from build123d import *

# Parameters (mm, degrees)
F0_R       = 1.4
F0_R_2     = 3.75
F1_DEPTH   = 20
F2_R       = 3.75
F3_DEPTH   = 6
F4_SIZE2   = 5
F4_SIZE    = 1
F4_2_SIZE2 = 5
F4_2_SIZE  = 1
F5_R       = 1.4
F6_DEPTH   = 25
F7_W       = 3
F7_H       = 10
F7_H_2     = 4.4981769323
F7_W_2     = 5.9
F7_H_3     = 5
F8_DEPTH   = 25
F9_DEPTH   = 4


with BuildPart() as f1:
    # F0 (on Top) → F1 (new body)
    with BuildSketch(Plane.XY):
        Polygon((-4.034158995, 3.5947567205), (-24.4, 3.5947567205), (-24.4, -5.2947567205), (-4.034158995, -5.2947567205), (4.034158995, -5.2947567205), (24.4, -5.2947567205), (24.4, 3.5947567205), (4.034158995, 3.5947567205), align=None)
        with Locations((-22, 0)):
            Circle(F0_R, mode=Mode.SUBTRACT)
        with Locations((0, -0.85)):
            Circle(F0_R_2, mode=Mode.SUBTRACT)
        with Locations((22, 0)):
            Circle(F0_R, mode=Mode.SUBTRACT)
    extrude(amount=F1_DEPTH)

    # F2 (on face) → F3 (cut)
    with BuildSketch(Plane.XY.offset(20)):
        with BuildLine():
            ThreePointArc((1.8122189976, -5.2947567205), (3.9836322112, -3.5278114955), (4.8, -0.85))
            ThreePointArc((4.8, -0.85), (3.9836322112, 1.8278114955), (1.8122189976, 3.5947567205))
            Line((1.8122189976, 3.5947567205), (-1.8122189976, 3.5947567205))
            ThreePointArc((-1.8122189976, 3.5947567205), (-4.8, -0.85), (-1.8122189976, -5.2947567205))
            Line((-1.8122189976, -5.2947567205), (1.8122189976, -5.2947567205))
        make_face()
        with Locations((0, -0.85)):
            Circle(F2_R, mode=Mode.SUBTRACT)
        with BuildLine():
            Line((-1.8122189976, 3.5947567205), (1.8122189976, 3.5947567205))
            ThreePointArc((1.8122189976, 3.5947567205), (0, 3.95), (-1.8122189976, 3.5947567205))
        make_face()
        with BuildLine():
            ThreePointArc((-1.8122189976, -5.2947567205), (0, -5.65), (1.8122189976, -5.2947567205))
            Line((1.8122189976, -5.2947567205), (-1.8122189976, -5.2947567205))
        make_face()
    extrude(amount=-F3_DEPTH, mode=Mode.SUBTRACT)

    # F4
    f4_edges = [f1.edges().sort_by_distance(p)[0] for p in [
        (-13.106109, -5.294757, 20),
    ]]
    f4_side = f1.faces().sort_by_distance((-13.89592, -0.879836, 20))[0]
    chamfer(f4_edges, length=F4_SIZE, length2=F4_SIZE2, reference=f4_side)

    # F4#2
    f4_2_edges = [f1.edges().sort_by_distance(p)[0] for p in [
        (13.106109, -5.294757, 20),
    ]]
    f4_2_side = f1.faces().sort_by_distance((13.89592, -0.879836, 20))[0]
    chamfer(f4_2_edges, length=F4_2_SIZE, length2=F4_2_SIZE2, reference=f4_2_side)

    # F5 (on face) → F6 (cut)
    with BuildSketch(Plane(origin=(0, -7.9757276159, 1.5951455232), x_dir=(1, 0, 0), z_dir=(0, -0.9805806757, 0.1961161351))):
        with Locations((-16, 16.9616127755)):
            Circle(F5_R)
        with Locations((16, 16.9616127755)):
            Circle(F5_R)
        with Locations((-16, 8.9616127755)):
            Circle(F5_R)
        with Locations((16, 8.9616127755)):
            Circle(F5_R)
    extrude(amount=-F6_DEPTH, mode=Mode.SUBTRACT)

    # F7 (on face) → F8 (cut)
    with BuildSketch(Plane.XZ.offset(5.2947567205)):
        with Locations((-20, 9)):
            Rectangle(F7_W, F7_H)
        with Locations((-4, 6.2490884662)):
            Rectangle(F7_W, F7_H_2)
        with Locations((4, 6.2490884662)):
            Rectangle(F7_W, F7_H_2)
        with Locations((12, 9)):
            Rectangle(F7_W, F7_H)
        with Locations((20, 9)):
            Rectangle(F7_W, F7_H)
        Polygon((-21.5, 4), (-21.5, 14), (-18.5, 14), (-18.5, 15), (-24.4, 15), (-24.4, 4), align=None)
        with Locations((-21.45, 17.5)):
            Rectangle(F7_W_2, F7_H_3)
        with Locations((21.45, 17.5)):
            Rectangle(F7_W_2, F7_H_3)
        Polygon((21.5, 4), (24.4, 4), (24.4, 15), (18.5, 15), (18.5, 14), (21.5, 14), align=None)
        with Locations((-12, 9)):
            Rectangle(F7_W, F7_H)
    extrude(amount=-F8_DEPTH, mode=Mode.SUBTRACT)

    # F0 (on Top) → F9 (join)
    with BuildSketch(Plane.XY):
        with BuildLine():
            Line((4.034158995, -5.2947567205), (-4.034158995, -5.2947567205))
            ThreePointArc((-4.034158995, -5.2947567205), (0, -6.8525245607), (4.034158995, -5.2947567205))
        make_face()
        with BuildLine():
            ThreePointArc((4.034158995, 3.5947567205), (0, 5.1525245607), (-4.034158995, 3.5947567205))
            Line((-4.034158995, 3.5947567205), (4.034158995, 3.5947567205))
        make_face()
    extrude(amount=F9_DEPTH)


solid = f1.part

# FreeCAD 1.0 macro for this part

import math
import FreeCAD as App
import Part
import Sketcher
from FreeCAD import Vector


def edges_at(feature, points):
    """Names of the edges that pass closest to the given points."""
    edges = feature.Shape.Edges
    near = lambda p: min(range(len(edges)), key=lambda i: edges[i].distToShape(Part.Vertex(*p))[0])
    return sorted({f"Edge{near(p) + 1}" for p in points})

doc = App.newDocument("Part")
body = doc.addObject("PartDesign::Body", "Body")

# Sketch on XY plane
sketch1 = body.newObject("Sketcher::SketchObject", "Sketch")
sketch1.AttachmentSupport = (doc.getObject("XY_Plane"), [""])
sketch1.MapMode = "FlatFace"
sketch1.addGeometry(Part.LineSegment(Vector(-24.4, 3.594757, 0), Vector(-24.4, -5.294757, 0)), False)
sketch1.addGeometry(Part.LineSegment(Vector(-24.4, -5.294757, 0), Vector(24.4, -5.294757, 0)), False)
sketch1.addGeometry(Part.LineSegment(Vector(24.4, -5.294757, 0), Vector(24.4, 3.594757, 0)), False)
sketch1.addGeometry(Part.LineSegment(Vector(24.4, 3.594757, 0), Vector(-24.4, 3.594757, 0)), False)
sketch1.addGeometry(Part.Circle(Vector(-22, 0, 0), Vector(0, 0, 1), 1.4), False)
sketch1.addGeometry(Part.Circle(Vector(0, -0.85, 0), Vector(0, 0, 1), 3.75), False)
sketch1.addGeometry(Part.Circle(Vector(22, 0, 0), Vector(0, 0, 1), 1.4), False)
sketch1.addConstraint(Sketcher.Constraint("Coincident", 0, 2, 1, 1))
sketch1.addConstraint(Sketcher.Constraint("Coincident", 1, 2, 2, 1))
sketch1.addConstraint(Sketcher.Constraint("Coincident", 2, 2, 3, 1))
sketch1.addConstraint(Sketcher.Constraint("Coincident", 3, 2, 0, 1))
sketch1.addConstraint(Sketcher.Constraint("Vertical", 0))
sketch1.addConstraint(Sketcher.Constraint("Horizontal", 1))
sketch1.addConstraint(Sketcher.Constraint("Vertical", 2))
sketch1.addConstraint(Sketcher.Constraint("Horizontal", 3))
sketch1.addConstraint(Sketcher.Constraint("Equal", 4, 6))
sketch1.addConstraint(Sketcher.Constraint("Symmetric", 4, 3, 6, 3, -1, 1))
sketch1.addConstraint(Sketcher.Constraint("PointOnObject", 4, 3, -1))
sketch1.addConstraint(Sketcher.Constraint("PointOnObject", 5, 3, -2))
sketch1.addConstraint(Sketcher.Constraint("Diameter", 4, 2.8))
sketch1.addConstraint(Sketcher.Constraint("Diameter", 5, 7.5))
sketch1.addConstraint(Sketcher.Constraint("DistanceX", 1, 1, 1, 2, 48.8))
sketch1.addConstraint(Sketcher.Constraint("DistanceX", 4, 3, -1, 1, 22.0))
sketch1.addConstraint(Sketcher.Constraint("DistanceX", 0, 2, -1, 1, 24.4))
sketch1.addConstraint(Sketcher.Constraint("DistanceY", 5, 3, -1, 1, 0.85))
sketch1.addConstraint(Sketcher.Constraint("DistanceY", 0, 2, 0, 1, 8.889513))
sketch1.addConstraint(Sketcher.Constraint("DistanceY", 0, 2, -1, 1, 5.294757))
pad1 = body.newObject("PartDesign::Pad", "Pad")
pad1.Profile = sketch1
pad1.Length = 20

# Sketch on XY plane
sketch2 = body.newObject("Sketcher::SketchObject", "Sketch001")
sketch2.AttachmentSupport = (doc.getObject("XY_Plane"), [""])
sketch2.MapMode = "FlatFace"
sketch2.AttachmentOffset = App.Placement(Vector(0, 0, 20), App.Rotation())
sketch2.addGeometry(Part.ArcOfCircle(Part.Circle(Vector(0, -0.85, 0), Vector(0, 0, 1), 4.8), math.radians(-67.818264), math.radians(0)), False)
sketch2.addGeometry(Part.ArcOfCircle(Part.Circle(Vector(0, -0.85, 0), Vector(0, 0, 1), 4.8), math.radians(0), math.radians(67.818264)), False)
sketch2.addGeometry(Part.ArcOfCircle(Part.Circle(Vector(0, -0.85, 0), Vector(0, 0, 1), 4.8), math.radians(67.818264), math.radians(112.181736)), False)
sketch2.addGeometry(Part.ArcOfCircle(Part.Circle(Vector(0, -0.85, 0), Vector(0, 0, 1), 4.8), math.radians(112.181736), math.radians(247.818264)), False)
sketch2.addGeometry(Part.ArcOfCircle(Part.Circle(Vector(0, -0.85, 0), Vector(0, 0, 1), 4.8), math.radians(-112.181736), math.radians(-67.818264)), False)
sketch2.addGeometry(Part.Circle(Vector(0, -0.85, 0), Vector(0, 0, 1), 3.75), False)
sketch2.addConstraint(Sketcher.Constraint("Tangent", 0, 2, 1, 1))
sketch2.addConstraint(Sketcher.Constraint("Tangent", 1, 2, 2, 1))
sketch2.addConstraint(Sketcher.Constraint("Tangent", 2, 2, 3, 1))
sketch2.addConstraint(Sketcher.Constraint("Tangent", 3, 2, 4, 1))
sketch2.addConstraint(Sketcher.Constraint("Tangent", 4, 2, 0, 1))
sketch2.addConstraint(Sketcher.Constraint("Coincident", 2, 3, 0, 3))
sketch2.addConstraint(Sketcher.Constraint("Coincident", 5, 3, 0, 3))
sketch2.addConstraint(Sketcher.Constraint("Symmetric", 1, 2, 2, 2, -2))
sketch2.addConstraint(Sketcher.Constraint("Horizontal", 5, 3, 0, 2))
sketch2.addConstraint(Sketcher.Constraint("Horizontal", 3, 2, 4, 2))
sketch2.addConstraint(Sketcher.Constraint("Vertical", 2, 2, 3, 2))
sketch2.addConstraint(Sketcher.Constraint("Diameter", 5, 7.5))
sketch2.addConstraint(Sketcher.Constraint("Radius", 0, 4.8))
sketch2.addConstraint(Sketcher.Constraint("DistanceY", 0, 3, -1, 1, 0.85))
sketch2.addConstraint(Sketcher.Constraint("DistanceX", -1, 1, 1, 2, 1.812219))
pocket1 = body.newObject("PartDesign::Pocket", "Pocket")
pocket1.Profile = sketch2
pocket1.Length = 6
doc.recompute()

chamfer = body.newObject("PartDesign::Chamfer", "Chamfer")
chamfer.Base = (pocket1, edges_at(pocket1, [(-13.106, -5.295, 20)]))
chamfer.ChamferType = "Two distances"
chamfer.Size = 1
chamfer.Size2 = 5
chamfer.FlipDirection = True
doc.recompute()

chamfer2 = body.newObject("PartDesign::Chamfer", "Chamfer001")
chamfer2.Base = (chamfer, edges_at(chamfer, [(13.106, -5.295, 20)]))
chamfer2.ChamferType = "Two distances"
chamfer2.Size = 1
chamfer2.Size2 = 5
chamfer2.FlipDirection = True

# Sketch on an angled plane
sketch3 = body.newObject("Sketcher::SketchObject", "Sketch002")
sketch3.Placement = App.Placement(Vector(0, -7.975728, 1.595146), App.Rotation(Vector(1, 0, 0), Vector(0, 0.196116135, 0.980580676), Vector(0, -0.980580676, 0.196116135), "ZXY"))
sketch3.addGeometry(Part.Circle(Vector(-16, 16.961613, 0), Vector(0, 0, 1), 1.4), False)
sketch3.addGeometry(Part.Circle(Vector(16, 16.961613, 0), Vector(0, 0, 1), 1.4), False)
sketch3.addGeometry(Part.Circle(Vector(-16, 8.961613, 0), Vector(0, 0, 1), 1.4), False)
sketch3.addGeometry(Part.Circle(Vector(16, 8.961613, 0), Vector(0, 0, 1), 1.4), False)
sketch3.addConstraint(Sketcher.Constraint("Equal", 0, 1))
sketch3.addConstraint(Sketcher.Constraint("Equal", 1, 2))
sketch3.addConstraint(Sketcher.Constraint("Equal", 2, 3))
sketch3.addConstraint(Sketcher.Constraint("Symmetric", 0, 3, 1, 3, -2))
sketch3.addConstraint(Sketcher.Constraint("Symmetric", 2, 3, 3, 3, -2))
sketch3.addConstraint(Sketcher.Constraint("Vertical", 0, 3, 2, 3))
sketch3.addConstraint(Sketcher.Constraint("Diameter", 0, 2.8))
sketch3.addConstraint(Sketcher.Constraint("DistanceX", 0, 3, -1, 1, 16.0))
sketch3.addConstraint(Sketcher.Constraint("DistanceY", 2, 3, 0, 3, 8.0))
sketch3.addConstraint(Sketcher.Constraint("DistanceY", -1, 1, 0, 3, 16.961613))
pocket2 = body.newObject("PartDesign::Pocket", "Pocket001")
pocket2.Profile = sketch3
pocket2.Length = 25

# Sketch on XZ plane
sketch4 = body.newObject("Sketcher::SketchObject", "Sketch003")
sketch4.AttachmentSupport = (doc.getObject("XZ_Plane"), [""])
sketch4.MapMode = "FlatFace"
sketch4.AttachmentOffset = App.Placement(Vector(0, 0, 5.294757), App.Rotation())
sketch4.addGeometry(Part.LineSegment(Vector(-18.5, 4, 0), Vector(-18.5, 20, 0)), False)
sketch4.addGeometry(Part.LineSegment(Vector(-18.5, 20, 0), Vector(-24.4, 20, 0)), False)
sketch4.addGeometry(Part.LineSegment(Vector(-24.4, 20, 0), Vector(-24.4, 4, 0)), False)
sketch4.addGeometry(Part.LineSegment(Vector(-24.4, 4, 0), Vector(-18.5, 4, 0)), False)
sketch4.addGeometry(Part.LineSegment(Vector(-5.5, 8.498177, 0), Vector(-5.5, 4, 0)), False)
sketch4.addGeometry(Part.LineSegment(Vector(-5.5, 4, 0), Vector(-2.5, 4, 0)), False)
sketch4.addGeometry(Part.LineSegment(Vector(-2.5, 4, 0), Vector(-2.5, 8.498177, 0)), False)
sketch4.addGeometry(Part.LineSegment(Vector(-2.5, 8.498177, 0), Vector(-5.5, 8.498177, 0)), False)
sketch4.addGeometry(Part.LineSegment(Vector(2.5, 8.498177, 0), Vector(2.5, 4, 0)), False)
sketch4.addGeometry(Part.LineSegment(Vector(2.5, 4, 0), Vector(5.5, 4, 0)), False)
sketch4.addGeometry(Part.LineSegment(Vector(5.5, 4, 0), Vector(5.5, 8.498177, 0)), False)
sketch4.addGeometry(Part.LineSegment(Vector(5.5, 8.498177, 0), Vector(2.5, 8.498177, 0)), False)
sketch4.addGeometry(Part.LineSegment(Vector(10.5, 14, 0), Vector(10.5, 4, 0)), False)
sketch4.addGeometry(Part.LineSegment(Vector(10.5, 4, 0), Vector(13.5, 4, 0)), False)
sketch4.addGeometry(Part.LineSegment(Vector(13.5, 4, 0), Vector(13.5, 14, 0)), False)
sketch4.addGeometry(Part.LineSegment(Vector(13.5, 14, 0), Vector(10.5, 14, 0)), False)
sketch4.addGeometry(Part.LineSegment(Vector(18.5, 4, 0), Vector(24.4, 4, 0)), False)
sketch4.addGeometry(Part.LineSegment(Vector(24.4, 4, 0), Vector(24.4, 20, 0)), False)
sketch4.addGeometry(Part.LineSegment(Vector(24.4, 20, 0), Vector(18.5, 20, 0)), False)
sketch4.addGeometry(Part.LineSegment(Vector(18.5, 20, 0), Vector(18.5, 4, 0)), False)
sketch4.addGeometry(Part.LineSegment(Vector(-13.5, 14, 0), Vector(-13.5, 4, 0)), False)
sketch4.addGeometry(Part.LineSegment(Vector(-13.5, 4, 0), Vector(-10.5, 4, 0)), False)
sketch4.addGeometry(Part.LineSegment(Vector(-10.5, 4, 0), Vector(-10.5, 14, 0)), False)
sketch4.addGeometry(Part.LineSegment(Vector(-10.5, 14, 0), Vector(-13.5, 14, 0)), False)
sketch4.addConstraint(Sketcher.Constraint("Coincident", 0, 2, 1, 1))
sketch4.addConstraint(Sketcher.Constraint("Coincident", 1, 2, 2, 1))
sketch4.addConstraint(Sketcher.Constraint("Coincident", 2, 2, 3, 1))
sketch4.addConstraint(Sketcher.Constraint("Coincident", 3, 2, 0, 1))
sketch4.addConstraint(Sketcher.Constraint("Coincident", 4, 2, 5, 1))
sketch4.addConstraint(Sketcher.Constraint("Coincident", 5, 2, 6, 1))
sketch4.addConstraint(Sketcher.Constraint("Coincident", 6, 2, 7, 1))
sketch4.addConstraint(Sketcher.Constraint("Coincident", 7, 2, 4, 1))
sketch4.addConstraint(Sketcher.Constraint("Coincident", 8, 2, 9, 1))
sketch4.addConstraint(Sketcher.Constraint("Coincident", 9, 2, 10, 1))
sketch4.addConstraint(Sketcher.Constraint("Coincident", 10, 2, 11, 1))
sketch4.addConstraint(Sketcher.Constraint("Coincident", 11, 2, 8, 1))
sketch4.addConstraint(Sketcher.Constraint("Coincident", 12, 2, 13, 1))
sketch4.addConstraint(Sketcher.Constraint("Coincident", 13, 2, 14, 1))
sketch4.addConstraint(Sketcher.Constraint("Coincident", 14, 2, 15, 1))
sketch4.addConstraint(Sketcher.Constraint("Coincident", 15, 2, 12, 1))
sketch4.addConstraint(Sketcher.Constraint("Coincident", 16, 2, 17, 1))
sketch4.addConstraint(Sketcher.Constraint("Coincident", 17, 2, 18, 1))
sketch4.addConstraint(Sketcher.Constraint("Coincident", 18, 2, 19, 1))
sketch4.addConstraint(Sketcher.Constraint("Coincident", 19, 2, 16, 1))
sketch4.addConstraint(Sketcher.Constraint("Coincident", 20, 2, 21, 1))
sketch4.addConstraint(Sketcher.Constraint("Coincident", 21, 2, 22, 1))
sketch4.addConstraint(Sketcher.Constraint("Coincident", 22, 2, 23, 1))
sketch4.addConstraint(Sketcher.Constraint("Coincident", 23, 2, 20, 1))
sketch4.addConstraint(Sketcher.Constraint("Vertical", 0))
sketch4.addConstraint(Sketcher.Constraint("Horizontal", 1))
sketch4.addConstraint(Sketcher.Constraint("Vertical", 2))
sketch4.addConstraint(Sketcher.Constraint("Horizontal", 3))
sketch4.addConstraint(Sketcher.Constraint("Vertical", 4))
sketch4.addConstraint(Sketcher.Constraint("Horizontal", 5))
sketch4.addConstraint(Sketcher.Constraint("Vertical", 6))
sketch4.addConstraint(Sketcher.Constraint("Horizontal", 7))
sketch4.addConstraint(Sketcher.Constraint("Vertical", 8))
sketch4.addConstraint(Sketcher.Constraint("Horizontal", 9))
sketch4.addConstraint(Sketcher.Constraint("Vertical", 10))
sketch4.addConstraint(Sketcher.Constraint("Horizontal", 11))
sketch4.addConstraint(Sketcher.Constraint("Vertical", 12))
sketch4.addConstraint(Sketcher.Constraint("Horizontal", 13))
sketch4.addConstraint(Sketcher.Constraint("Vertical", 14))
sketch4.addConstraint(Sketcher.Constraint("Horizontal", 15))
sketch4.addConstraint(Sketcher.Constraint("Horizontal", 16))
sketch4.addConstraint(Sketcher.Constraint("Vertical", 17))
sketch4.addConstraint(Sketcher.Constraint("Horizontal", 18))
sketch4.addConstraint(Sketcher.Constraint("Vertical", 19))
sketch4.addConstraint(Sketcher.Constraint("Vertical", 20))
sketch4.addConstraint(Sketcher.Constraint("Horizontal", 21))
sketch4.addConstraint(Sketcher.Constraint("Vertical", 22))
sketch4.addConstraint(Sketcher.Constraint("Horizontal", 23))
sketch4.addConstraint(Sketcher.Constraint("Symmetric", 5, 2, 8, 2, -2))
sketch4.addConstraint(Sketcher.Constraint("Symmetric", 7, 2, 10, 2, -2))
sketch4.addConstraint(Sketcher.Constraint("Symmetric", 2, 2, 16, 2, -2))
sketch4.addConstraint(Sketcher.Constraint("Symmetric", 0, 2, 18, 2, -2))
sketch4.addConstraint(Sketcher.Constraint("Symmetric", 13, 2, 20, 2, -2))
sketch4.addConstraint(Sketcher.Constraint("Symmetric", 15, 2, 22, 2, -2))
sketch4.addConstraint(Sketcher.Constraint("Horizontal", 3, 2, 4, 2))
sketch4.addConstraint(Sketcher.Constraint("Horizontal", 9, 2, 12, 2))
sketch4.addConstraint(Sketcher.Constraint("Equal", 11, 13))
sketch4.addConstraint(Sketcher.Constraint("DistanceX", 5, 1, 5, 2, 3.0))
sketch4.addConstraint(Sketcher.Constraint("DistanceY", 0, 1, 0, 2, 16.0))
sketch4.addConstraint(Sketcher.Constraint("DistanceY", 12, 2, 12, 1, 10.0))
sketch4.addConstraint(Sketcher.Constraint("DistanceX", 1, 2, 1, 1, 5.9))
sketch4.addConstraint(Sketcher.Constraint("DistanceY", -1, 1, 0, 2, 20.0))
sketch4.addConstraint(Sketcher.Constraint("DistanceX", 3, 2, 4, 2, 13.0))
sketch4.addConstraint(Sketcher.Constraint("DistanceX", 5, 2, 8, 2, 5.0))
sketch4.addConstraint(Sketcher.Constraint("DistanceX", 9, 2, 12, 2, 5.0))
sketch4.addConstraint(Sketcher.Constraint("DistanceY", 4, 2, 4, 1, 4.498177))
pocket3 = body.newObject("PartDesign::Pocket", "Pocket002")
pocket3.Profile = sketch4
pocket3.Length = 25

# Sketch on XY plane
sketch5 = body.newObject("Sketcher::SketchObject", "Sketch004")
sketch5.AttachmentSupport = (doc.getObject("XY_Plane"), [""])
sketch5.MapMode = "FlatFace"
sketch5.addGeometry(Part.LineSegment(Vector(4.034159, -5.294757, 0), Vector(-4.034159, -5.294757, 0)), False)
sketch5.addGeometry(Part.ArcOfCircle(Part.Circle(Vector(0, -0.85, 0), Vector(0, 0, 1), 6.002525), math.radians(-132.227576), math.radians(-47.772424)), False)
sketch5.addGeometry(Part.ArcOfCircle(Part.Circle(Vector(0, -0.85, 0), Vector(0, 0, 1), 6.002525), math.radians(47.772424), math.radians(132.227576)), False)
sketch5.addGeometry(Part.LineSegment(Vector(-4.034159, 3.594757, 0), Vector(4.034159, 3.594757, 0)), False)
sketch5.addConstraint(Sketcher.Constraint("Coincident", 0, 1, 1, 2))
sketch5.addConstraint(Sketcher.Constraint("Coincident", 1, 1, 0, 2))
sketch5.addConstraint(Sketcher.Constraint("Coincident", 2, 1, 3, 2))
sketch5.addConstraint(Sketcher.Constraint("Coincident", 3, 1, 2, 2))
sketch5.addConstraint(Sketcher.Constraint("Horizontal", 0))
sketch5.addConstraint(Sketcher.Constraint("Horizontal", 3))
sketch5.addConstraint(Sketcher.Constraint("Coincident", 2, 3, 1, 3))
sketch5.addConstraint(Sketcher.Constraint("Equal", 1, 2))
sketch5.addConstraint(Sketcher.Constraint("PointOnObject", 1, 3, -2))
sketch5.addConstraint(Sketcher.Constraint("Vertical", 0, 1, 2, 1))
sketch5.addConstraint(Sketcher.Constraint("DistanceY", 1, 3, -1, 1, 0.85))
sketch5.addConstraint(Sketcher.Constraint("Radius", 1, 6.002525))
sketch5.addConstraint(Sketcher.Constraint("DistanceX", 0, 2, 0, 1, 8.068318))
pad2 = body.newObject("PartDesign::Pad", "Pad001")
pad2.Profile = sketch5
pad2.Length = 4

doc.recompute()
